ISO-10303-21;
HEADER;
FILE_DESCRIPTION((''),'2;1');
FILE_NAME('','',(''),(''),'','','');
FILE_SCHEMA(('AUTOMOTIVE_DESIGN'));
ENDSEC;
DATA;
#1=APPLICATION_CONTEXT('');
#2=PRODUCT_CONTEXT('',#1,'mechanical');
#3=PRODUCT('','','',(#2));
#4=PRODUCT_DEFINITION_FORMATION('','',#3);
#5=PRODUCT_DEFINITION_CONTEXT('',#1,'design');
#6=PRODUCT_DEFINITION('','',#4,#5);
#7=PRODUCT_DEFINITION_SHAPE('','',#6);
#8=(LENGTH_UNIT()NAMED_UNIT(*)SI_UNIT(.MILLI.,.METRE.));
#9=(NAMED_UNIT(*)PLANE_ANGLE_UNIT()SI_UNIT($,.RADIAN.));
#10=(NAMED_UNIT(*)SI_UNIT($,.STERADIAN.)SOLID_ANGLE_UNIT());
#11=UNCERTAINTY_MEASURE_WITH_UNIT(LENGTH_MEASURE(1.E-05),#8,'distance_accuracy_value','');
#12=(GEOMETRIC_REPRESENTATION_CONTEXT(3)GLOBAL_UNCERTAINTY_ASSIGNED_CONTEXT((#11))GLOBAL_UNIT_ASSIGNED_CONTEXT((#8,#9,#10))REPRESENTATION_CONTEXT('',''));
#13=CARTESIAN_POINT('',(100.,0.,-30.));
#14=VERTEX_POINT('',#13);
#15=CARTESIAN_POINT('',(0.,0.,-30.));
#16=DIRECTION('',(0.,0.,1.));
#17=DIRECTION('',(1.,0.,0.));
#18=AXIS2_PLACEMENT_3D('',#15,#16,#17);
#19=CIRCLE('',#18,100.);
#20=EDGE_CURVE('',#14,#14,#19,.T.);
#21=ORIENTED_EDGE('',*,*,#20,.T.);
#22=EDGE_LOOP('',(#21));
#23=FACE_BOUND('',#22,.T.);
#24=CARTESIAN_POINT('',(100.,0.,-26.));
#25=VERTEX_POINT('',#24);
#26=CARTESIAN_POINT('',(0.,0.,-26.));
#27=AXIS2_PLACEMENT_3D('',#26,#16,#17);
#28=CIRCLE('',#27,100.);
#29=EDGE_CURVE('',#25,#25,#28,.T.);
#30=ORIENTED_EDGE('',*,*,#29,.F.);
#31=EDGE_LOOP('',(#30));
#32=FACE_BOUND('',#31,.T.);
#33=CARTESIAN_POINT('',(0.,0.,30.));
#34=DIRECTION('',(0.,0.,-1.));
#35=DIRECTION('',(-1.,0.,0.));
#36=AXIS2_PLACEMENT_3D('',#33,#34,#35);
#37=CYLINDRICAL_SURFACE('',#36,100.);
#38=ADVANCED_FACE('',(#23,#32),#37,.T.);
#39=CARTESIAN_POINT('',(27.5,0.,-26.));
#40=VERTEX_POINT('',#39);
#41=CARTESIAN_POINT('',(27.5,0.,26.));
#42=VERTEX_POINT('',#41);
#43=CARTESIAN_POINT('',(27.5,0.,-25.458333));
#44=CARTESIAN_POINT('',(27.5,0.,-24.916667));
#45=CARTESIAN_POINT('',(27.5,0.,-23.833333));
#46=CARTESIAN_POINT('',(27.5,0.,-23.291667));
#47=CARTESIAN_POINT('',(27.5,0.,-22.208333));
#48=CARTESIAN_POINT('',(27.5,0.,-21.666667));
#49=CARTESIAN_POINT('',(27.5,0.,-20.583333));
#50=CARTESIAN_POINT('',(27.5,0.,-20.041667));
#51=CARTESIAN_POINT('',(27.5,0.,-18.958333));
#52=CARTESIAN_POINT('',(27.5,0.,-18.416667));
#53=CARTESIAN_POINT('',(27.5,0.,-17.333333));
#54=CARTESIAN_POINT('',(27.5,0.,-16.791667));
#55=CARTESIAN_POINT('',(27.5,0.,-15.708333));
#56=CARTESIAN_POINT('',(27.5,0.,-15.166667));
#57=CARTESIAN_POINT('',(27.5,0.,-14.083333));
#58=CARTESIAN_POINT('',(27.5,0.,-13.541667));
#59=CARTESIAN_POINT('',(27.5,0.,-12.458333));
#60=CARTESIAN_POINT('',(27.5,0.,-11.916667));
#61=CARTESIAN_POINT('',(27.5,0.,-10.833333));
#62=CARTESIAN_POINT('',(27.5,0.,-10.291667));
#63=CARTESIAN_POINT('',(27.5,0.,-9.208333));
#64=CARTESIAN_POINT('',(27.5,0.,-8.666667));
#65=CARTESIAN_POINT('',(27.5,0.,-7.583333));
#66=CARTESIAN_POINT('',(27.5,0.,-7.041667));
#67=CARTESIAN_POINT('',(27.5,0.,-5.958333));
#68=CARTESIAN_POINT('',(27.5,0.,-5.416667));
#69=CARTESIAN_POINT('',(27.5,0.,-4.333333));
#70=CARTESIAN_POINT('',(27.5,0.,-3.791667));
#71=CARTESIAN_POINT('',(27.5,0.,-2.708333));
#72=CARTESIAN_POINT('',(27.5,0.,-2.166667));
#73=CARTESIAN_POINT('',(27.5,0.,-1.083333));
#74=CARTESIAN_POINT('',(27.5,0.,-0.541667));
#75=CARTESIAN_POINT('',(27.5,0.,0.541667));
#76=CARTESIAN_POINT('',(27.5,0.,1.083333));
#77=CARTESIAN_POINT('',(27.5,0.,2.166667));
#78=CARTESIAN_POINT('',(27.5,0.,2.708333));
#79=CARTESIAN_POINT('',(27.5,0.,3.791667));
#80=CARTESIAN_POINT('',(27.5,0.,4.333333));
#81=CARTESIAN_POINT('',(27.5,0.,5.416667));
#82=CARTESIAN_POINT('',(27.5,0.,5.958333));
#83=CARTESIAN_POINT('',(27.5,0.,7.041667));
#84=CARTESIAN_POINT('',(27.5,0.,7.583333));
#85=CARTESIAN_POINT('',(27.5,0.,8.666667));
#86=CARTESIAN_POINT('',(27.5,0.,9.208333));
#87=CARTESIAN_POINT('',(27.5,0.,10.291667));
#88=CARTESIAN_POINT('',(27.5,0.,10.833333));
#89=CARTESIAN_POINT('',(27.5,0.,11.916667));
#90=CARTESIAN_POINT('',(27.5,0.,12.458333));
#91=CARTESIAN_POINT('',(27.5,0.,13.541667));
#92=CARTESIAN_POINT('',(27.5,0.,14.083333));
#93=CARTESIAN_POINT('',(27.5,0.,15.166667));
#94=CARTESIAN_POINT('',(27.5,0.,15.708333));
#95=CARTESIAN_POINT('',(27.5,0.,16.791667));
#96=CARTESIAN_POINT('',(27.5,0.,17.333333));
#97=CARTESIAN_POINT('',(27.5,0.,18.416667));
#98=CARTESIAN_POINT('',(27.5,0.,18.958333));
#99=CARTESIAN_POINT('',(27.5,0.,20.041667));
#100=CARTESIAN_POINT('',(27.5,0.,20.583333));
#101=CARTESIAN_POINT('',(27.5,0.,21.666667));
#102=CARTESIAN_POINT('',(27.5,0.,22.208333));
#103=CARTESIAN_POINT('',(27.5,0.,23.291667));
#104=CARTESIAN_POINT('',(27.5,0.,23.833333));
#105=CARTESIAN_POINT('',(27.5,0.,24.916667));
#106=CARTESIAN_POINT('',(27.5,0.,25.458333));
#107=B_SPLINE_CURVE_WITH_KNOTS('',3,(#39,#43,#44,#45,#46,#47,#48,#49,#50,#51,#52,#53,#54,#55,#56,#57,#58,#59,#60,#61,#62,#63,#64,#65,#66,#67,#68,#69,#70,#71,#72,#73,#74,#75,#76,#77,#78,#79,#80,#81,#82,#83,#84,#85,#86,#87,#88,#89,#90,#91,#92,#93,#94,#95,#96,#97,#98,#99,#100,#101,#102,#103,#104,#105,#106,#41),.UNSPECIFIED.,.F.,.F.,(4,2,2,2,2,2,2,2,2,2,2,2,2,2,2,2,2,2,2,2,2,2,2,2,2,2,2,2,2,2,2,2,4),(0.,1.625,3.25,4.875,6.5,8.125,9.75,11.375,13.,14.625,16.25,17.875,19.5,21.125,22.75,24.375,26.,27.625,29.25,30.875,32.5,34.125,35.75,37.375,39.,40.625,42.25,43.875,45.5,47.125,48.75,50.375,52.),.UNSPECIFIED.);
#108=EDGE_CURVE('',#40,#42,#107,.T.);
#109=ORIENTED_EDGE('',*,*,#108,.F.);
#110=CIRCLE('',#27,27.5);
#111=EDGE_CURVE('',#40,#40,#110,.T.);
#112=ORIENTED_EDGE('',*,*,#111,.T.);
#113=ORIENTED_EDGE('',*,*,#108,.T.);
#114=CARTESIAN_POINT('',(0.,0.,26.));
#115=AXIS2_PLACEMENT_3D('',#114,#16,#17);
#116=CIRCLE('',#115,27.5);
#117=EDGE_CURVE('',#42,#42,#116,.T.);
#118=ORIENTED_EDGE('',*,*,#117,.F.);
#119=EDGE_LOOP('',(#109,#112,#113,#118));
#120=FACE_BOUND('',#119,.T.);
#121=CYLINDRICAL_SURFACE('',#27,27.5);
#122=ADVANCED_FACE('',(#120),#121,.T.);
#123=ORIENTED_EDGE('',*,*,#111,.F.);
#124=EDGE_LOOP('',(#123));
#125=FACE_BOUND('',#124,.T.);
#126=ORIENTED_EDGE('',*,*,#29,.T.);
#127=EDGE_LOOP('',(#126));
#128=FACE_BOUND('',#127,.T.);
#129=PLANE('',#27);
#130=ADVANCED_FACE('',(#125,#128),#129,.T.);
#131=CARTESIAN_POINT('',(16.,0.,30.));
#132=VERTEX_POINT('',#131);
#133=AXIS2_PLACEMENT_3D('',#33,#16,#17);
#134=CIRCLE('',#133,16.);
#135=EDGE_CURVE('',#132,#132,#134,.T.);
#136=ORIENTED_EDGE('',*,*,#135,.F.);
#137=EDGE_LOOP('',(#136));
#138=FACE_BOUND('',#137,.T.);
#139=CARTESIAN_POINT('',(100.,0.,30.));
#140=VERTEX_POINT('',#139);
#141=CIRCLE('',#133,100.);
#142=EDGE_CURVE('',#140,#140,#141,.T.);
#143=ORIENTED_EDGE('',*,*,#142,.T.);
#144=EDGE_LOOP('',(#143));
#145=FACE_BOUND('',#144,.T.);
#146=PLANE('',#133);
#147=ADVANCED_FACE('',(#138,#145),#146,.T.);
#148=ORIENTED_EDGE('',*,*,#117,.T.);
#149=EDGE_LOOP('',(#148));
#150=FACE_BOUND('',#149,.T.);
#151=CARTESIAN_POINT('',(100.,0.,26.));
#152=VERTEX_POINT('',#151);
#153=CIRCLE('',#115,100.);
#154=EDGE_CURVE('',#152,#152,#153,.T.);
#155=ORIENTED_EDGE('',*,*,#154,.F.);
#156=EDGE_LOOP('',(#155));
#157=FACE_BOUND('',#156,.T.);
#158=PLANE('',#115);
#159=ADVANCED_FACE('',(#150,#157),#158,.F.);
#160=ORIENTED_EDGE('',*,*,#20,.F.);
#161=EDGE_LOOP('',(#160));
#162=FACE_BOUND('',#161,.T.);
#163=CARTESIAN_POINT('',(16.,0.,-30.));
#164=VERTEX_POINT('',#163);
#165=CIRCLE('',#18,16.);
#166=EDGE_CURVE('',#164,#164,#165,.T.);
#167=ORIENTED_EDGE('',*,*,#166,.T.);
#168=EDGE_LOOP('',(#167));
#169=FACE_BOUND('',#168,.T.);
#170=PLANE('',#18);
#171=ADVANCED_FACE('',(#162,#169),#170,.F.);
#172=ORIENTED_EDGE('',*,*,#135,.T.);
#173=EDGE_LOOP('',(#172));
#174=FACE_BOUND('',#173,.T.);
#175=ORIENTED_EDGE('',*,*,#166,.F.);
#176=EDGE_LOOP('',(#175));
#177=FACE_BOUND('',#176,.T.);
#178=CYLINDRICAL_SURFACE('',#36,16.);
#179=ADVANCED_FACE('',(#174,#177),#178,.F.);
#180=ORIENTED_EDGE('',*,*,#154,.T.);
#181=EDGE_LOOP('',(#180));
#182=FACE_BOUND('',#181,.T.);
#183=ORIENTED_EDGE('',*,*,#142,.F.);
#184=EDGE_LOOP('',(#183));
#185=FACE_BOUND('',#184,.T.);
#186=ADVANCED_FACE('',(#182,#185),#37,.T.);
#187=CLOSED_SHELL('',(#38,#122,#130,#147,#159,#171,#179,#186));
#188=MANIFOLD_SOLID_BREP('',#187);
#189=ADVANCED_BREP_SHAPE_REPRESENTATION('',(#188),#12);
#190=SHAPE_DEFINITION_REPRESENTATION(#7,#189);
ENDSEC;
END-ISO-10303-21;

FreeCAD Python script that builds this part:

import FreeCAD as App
import Part
import Sketcher

V = App.Vector

doc = App.newDocument("Part")
params = doc.addObject("Spreadsheet::Sheet", "Params")
for row, (alias, value) in enumerate([
    ("sketch1_diameter", "200 mm"),
    ("sketch1_diameter2", "32 mm"),
    ("pad1_length", "60 mm"),
    ("sketch2_diameter", "200 mm"),
    ("sketch2_diameter2", "55 mm"),
    ("pocket1_length", "52 mm"),
], start=1):
    params.set(f"A{row}", alias)
    params.set(f"B{row}", "=" + value)
    params.setAlias(f"B{row}", alias)

body = doc.addObject("PartDesign::Body", "Body")

sketch1 = body.newObject("Sketcher::SketchObject", "Sketch")
sketch1.AttachmentSupport = (doc.getObject("XY_Plane"), [""])
sketch1.MapMode = "FlatFace"
sketch1.addGeometry([
    Part.Circle(V(0, 0, 0), V(0, 0, 1), 100),
    Part.Circle(V(0, 0, 0), V(0, 0, 1), 16),
], False)
sketch1.addConstraint([
    Sketcher.Constraint("Coincident", 0, 3, -1, 1),
    Sketcher.Constraint("Coincident", 1, 3, -1, 1),
    Sketcher.Constraint("Diameter", 0, 200.0),
    Sketcher.Constraint("Diameter", 1, 32.0),
])
sketch1.setExpression("Constraints[2]", "Params.sketch1_diameter")
sketch1.setExpression("Constraints[3]", "Params.sketch1_diameter2")
pad1 = body.newObject("PartDesign::Pad", "Pad")
pad1.Profile = sketch1
pad1.setExpression("Length", "Params.pad1_length")
pad1.Midplane = True

sketch2 = body.newObject("Sketcher::SketchObject", "Sketch001")
sketch2.AttachmentSupport = (doc.getObject("XY_Plane"), [""])
sketch2.MapMode = "FlatFace"
sketch2.addGeometry([
    Part.Circle(V(0, 0, 0), V(0, 0, 1), 100),
    Part.Circle(V(0, 0, 0), V(0, 0, 1), 27.5),
], False)
sketch2.addConstraint([
    Sketcher.Constraint("Coincident", 0, 3, -1, 1),
    Sketcher.Constraint("Coincident", 1, 3, -1, 1),
    Sketcher.Constraint("Diameter", 0, 200.0),
    Sketcher.Constraint("Diameter", 1, 55.0),
])
sketch2.setExpression("Constraints[2]", "Params.sketch2_diameter")
sketch2.setExpression("Constraints[3]", "Params.sketch2_diameter2")
pocket1 = body.newObject("PartDesign::Pocket", "Pocket")
pocket1.Profile = sketch2
pocket1.setExpression("Length", "Params.pocket1_length")
pocket1.Midplane = True

doc.recompute()
